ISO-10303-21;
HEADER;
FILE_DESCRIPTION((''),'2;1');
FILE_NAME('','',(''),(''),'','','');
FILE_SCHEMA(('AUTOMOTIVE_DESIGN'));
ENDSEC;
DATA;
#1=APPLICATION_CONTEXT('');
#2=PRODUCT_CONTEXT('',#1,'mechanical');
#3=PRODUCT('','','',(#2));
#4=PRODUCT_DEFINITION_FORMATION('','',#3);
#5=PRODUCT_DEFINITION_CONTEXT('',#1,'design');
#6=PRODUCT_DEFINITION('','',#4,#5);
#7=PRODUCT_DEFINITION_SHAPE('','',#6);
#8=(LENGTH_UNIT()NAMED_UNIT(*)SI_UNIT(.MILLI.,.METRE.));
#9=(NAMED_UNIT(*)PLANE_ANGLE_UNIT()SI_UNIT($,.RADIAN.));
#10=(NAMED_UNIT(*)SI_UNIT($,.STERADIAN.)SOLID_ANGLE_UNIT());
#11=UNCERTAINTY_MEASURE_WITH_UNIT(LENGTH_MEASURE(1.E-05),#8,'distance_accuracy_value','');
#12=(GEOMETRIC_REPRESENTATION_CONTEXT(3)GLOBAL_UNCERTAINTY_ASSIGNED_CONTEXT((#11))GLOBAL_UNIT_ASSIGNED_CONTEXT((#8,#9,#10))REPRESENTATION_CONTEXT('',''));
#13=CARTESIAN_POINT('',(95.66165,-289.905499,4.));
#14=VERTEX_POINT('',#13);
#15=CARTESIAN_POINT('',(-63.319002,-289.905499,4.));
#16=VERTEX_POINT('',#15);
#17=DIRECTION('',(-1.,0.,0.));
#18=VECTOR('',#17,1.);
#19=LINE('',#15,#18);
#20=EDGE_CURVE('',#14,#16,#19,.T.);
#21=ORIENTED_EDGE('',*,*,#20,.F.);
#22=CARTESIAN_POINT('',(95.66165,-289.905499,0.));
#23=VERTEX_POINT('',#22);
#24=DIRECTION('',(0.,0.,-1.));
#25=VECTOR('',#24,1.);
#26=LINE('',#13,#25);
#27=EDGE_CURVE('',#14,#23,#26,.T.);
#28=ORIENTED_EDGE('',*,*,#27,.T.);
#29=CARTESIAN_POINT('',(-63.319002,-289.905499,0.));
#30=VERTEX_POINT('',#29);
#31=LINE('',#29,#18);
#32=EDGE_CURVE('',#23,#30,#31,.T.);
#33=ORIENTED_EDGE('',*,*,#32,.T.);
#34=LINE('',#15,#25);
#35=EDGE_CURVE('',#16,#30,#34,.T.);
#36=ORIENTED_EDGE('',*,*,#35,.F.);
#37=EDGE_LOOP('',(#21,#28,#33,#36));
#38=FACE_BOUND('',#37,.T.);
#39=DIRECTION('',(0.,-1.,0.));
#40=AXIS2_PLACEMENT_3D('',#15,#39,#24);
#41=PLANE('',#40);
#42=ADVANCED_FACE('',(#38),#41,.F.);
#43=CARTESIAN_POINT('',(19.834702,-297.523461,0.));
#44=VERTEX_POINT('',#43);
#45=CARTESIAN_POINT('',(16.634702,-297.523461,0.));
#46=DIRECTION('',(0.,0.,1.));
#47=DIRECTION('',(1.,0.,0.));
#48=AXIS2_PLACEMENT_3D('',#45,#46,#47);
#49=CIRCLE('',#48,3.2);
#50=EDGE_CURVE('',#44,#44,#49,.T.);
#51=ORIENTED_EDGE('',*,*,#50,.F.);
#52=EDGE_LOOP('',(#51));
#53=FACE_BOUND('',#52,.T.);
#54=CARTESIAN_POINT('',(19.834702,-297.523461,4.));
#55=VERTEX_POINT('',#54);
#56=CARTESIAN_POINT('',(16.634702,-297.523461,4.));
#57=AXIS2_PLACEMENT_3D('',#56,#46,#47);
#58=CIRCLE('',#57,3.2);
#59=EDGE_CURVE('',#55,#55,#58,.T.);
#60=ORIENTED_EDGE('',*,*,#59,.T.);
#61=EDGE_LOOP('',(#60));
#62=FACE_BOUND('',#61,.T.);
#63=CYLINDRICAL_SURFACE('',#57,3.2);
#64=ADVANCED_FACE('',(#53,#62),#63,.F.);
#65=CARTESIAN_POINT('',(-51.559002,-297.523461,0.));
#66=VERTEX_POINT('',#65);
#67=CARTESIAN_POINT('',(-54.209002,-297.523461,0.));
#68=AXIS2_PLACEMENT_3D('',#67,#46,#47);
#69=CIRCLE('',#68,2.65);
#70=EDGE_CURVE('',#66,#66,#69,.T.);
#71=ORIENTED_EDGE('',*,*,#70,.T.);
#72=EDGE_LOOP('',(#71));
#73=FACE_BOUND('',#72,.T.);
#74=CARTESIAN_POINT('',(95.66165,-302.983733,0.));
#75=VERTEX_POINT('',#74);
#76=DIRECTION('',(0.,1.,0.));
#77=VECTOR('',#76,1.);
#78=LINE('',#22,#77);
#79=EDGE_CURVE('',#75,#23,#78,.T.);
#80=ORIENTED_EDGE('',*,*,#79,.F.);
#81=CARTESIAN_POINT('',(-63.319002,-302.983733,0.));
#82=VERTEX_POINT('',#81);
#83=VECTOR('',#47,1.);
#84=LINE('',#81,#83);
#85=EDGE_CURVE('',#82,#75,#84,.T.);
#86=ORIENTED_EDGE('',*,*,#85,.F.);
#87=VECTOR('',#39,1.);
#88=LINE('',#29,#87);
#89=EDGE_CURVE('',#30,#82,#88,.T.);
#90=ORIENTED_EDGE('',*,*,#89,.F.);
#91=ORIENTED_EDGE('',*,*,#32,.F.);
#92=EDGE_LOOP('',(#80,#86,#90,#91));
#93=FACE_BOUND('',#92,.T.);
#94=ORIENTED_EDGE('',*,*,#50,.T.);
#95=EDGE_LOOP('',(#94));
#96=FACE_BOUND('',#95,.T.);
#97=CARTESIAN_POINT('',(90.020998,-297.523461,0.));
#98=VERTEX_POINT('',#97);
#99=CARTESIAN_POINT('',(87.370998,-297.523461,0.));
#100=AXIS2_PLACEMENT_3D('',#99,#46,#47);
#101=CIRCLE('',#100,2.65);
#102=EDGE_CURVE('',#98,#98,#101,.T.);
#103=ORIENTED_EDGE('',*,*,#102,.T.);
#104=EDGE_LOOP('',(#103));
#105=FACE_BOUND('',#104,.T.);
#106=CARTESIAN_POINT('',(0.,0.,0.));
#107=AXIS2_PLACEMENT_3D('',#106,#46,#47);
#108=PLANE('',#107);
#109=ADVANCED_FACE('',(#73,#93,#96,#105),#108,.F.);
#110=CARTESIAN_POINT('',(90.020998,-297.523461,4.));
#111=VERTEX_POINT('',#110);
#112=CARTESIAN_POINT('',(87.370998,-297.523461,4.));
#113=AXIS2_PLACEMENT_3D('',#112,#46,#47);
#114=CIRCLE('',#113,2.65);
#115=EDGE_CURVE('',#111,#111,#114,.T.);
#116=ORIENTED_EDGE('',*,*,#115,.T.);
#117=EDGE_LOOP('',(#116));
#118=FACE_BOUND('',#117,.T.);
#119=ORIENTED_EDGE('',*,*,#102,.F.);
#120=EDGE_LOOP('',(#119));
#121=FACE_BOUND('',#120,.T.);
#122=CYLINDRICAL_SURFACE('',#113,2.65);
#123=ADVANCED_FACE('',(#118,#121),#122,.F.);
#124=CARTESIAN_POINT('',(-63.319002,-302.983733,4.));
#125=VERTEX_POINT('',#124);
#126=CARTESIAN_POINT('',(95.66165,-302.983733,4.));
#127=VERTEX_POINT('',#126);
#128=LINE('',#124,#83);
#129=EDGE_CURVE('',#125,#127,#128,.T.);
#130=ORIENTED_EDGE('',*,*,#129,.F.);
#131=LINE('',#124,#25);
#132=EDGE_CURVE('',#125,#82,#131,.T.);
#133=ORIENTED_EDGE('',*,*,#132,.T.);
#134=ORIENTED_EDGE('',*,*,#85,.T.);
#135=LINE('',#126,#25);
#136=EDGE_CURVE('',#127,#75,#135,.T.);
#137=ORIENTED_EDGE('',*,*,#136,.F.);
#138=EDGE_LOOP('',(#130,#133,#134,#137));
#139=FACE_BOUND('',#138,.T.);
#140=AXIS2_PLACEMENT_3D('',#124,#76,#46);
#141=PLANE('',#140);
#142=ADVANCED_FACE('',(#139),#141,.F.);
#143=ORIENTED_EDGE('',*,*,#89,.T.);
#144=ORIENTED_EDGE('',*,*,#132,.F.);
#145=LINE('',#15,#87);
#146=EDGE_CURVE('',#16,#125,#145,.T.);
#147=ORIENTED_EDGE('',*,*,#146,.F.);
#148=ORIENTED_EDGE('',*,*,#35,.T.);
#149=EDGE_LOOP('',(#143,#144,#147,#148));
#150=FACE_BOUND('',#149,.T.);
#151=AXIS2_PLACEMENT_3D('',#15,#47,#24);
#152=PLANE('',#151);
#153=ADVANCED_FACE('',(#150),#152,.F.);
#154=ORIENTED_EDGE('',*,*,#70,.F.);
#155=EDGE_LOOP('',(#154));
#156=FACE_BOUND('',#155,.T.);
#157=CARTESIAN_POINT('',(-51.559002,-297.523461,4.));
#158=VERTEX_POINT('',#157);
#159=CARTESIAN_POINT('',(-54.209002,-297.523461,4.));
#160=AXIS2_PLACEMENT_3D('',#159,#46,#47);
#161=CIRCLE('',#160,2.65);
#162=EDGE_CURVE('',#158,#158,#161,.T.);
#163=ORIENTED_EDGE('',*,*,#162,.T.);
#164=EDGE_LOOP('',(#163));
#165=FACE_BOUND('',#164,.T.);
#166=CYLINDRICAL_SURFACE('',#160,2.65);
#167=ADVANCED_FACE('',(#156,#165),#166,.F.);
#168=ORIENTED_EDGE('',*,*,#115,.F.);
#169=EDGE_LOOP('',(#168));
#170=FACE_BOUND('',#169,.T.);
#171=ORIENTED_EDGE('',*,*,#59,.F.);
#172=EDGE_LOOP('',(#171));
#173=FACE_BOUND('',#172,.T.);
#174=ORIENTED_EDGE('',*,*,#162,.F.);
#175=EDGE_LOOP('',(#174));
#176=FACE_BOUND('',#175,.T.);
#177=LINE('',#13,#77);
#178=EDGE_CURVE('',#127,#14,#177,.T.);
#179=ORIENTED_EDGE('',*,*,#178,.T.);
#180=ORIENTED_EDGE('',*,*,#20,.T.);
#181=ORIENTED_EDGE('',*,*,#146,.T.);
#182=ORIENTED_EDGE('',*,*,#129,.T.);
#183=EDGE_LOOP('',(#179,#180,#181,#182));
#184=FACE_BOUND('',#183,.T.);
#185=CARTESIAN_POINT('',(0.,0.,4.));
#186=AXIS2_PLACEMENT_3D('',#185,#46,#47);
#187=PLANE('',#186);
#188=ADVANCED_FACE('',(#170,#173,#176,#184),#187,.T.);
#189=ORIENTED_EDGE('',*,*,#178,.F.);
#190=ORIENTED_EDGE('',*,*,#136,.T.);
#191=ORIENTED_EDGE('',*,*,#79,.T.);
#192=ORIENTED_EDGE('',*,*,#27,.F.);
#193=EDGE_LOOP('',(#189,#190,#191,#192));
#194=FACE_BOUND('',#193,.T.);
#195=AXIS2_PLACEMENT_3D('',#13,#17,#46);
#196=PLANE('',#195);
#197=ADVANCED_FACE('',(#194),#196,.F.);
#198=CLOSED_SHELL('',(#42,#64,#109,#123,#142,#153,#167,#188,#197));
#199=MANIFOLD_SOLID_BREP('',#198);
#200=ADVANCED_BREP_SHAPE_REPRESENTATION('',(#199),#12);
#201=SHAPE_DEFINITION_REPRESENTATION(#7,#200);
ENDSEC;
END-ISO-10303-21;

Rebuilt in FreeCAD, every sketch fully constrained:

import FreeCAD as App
import Part
import Sketcher

V = App.Vector


def add_polygon(sketch, points):
    """Adds a closed chain of lines whose ends are joined by coincident constraints."""
    first, n = sketch.GeometryCount, len(points)
    for a, b in zip(points, points[1:] + points[:1]):
        sketch.addGeometry(Part.LineSegment(App.Vector(*a, 0), App.Vector(*b, 0)), False)
    for i in range(n):
        sketch.addConstraint(Sketcher.Constraint("Coincident", first + i, 2, first + (i + 1) % n, 1))

doc = App.newDocument("Part")
body = doc.addObject("PartDesign::Body", "Body")

sketch1 = body.newObject("Sketcher::SketchObject", "Sketch")
sketch1.AttachmentSupport = (doc.getObject("XY_Plane"), [""])
sketch1.MapMode = "FlatFace"
add_polygon(sketch1, [(-63, -290), (-63, -303), (96, -303), (96, -290)])
sketch1.addConstraint([
    Sketcher.Constraint("Vertical", 0),
    Sketcher.Constraint("Horizontal", 1),
    Sketcher.Constraint("Vertical", 2),
    Sketcher.Constraint("Horizontal", 3),
    Sketcher.Constraint("DistanceX", 0, 2, -1, 1, 63.319002),
    Sketcher.Constraint("DistanceX", 1, 1, 1, 2, 158.980651),
    Sketcher.Constraint("DistanceY", 2, 2, -1, 1, 289.905499),
    Sketcher.Constraint("DistanceY", 0, 2, 0, 1, 13.078235),
])
pad1 = body.newObject("PartDesign::Pad", "Pad")
pad1.Profile = sketch1
pad1.Length = 4

sketch2 = body.newObject("Sketcher::SketchObject", "Sketch001")
sketch2.AttachmentSupport = (doc.getObject("XY_Plane"), [""])
sketch2.MapMode = "FlatFace"
sketch2.AttachmentOffset = App.Placement(V(0, 0, 4), App.Rotation())
sketch2.addGeometry([
    Part.Circle(V(87.4, -297.5, 0), V(0, 0, 1), 2.6),
    Part.Circle(V(-54.2, -297.5, 0), V(0, 0, 1), 2.6),
], False)
sketch2.addConstraint([
    Sketcher.Constraint("Equal", 0, 1),
    Sketcher.Constraint("Horizontal", 0, 3, 1, 3),
    Sketcher.Constraint("Diameter", 0, 5.3),
    Sketcher.Constraint("DistanceX", 1, 3, 0, 3, 141.58),
    Sketcher.Constraint("DistanceX", -1, 1, 0, 3, 87.370998),
    Sketcher.Constraint("DistanceY", 0, 3, -1, 1, 297.523461),
])
doc.recompute()
hole = body.newObject("PartDesign::Hole", "Hole")
hole.Profile = sketch2
hole.ThreadType = "None"
hole.Diameter = 5.3
hole.DepthType = "ThroughAll"

sketch3 = body.newObject("Sketcher::SketchObject", "Sketch002")
sketch3.AttachmentSupport = (doc.getObject("XY_Plane"), [""])
sketch3.MapMode = "FlatFace"
sketch3.AttachmentOffset = App.Placement(V(0, 0, 4), App.Rotation())
sketch3.addGeometry(Part.Circle(V(16.6, -297.5, 0), V(0, 0, 1), 3.2), False)
sketch3.addConstraint([
    Sketcher.Constraint("Diameter", 0, 6.4),
    Sketcher.Constraint("DistanceY", 0, 3, -1, 1, 297.523461),
    Sketcher.Constraint("DistanceX", -1, 1, 0, 3, 16.634702),
])
doc.recompute()
hole2 = body.newObject("PartDesign::Hole", "Hole001")
hole2.Profile = sketch3
hole2.ThreadType = "None"
hole2.Diameter = 6.4
hole2.DepthType = "ThroughAll"

doc.recompute()
